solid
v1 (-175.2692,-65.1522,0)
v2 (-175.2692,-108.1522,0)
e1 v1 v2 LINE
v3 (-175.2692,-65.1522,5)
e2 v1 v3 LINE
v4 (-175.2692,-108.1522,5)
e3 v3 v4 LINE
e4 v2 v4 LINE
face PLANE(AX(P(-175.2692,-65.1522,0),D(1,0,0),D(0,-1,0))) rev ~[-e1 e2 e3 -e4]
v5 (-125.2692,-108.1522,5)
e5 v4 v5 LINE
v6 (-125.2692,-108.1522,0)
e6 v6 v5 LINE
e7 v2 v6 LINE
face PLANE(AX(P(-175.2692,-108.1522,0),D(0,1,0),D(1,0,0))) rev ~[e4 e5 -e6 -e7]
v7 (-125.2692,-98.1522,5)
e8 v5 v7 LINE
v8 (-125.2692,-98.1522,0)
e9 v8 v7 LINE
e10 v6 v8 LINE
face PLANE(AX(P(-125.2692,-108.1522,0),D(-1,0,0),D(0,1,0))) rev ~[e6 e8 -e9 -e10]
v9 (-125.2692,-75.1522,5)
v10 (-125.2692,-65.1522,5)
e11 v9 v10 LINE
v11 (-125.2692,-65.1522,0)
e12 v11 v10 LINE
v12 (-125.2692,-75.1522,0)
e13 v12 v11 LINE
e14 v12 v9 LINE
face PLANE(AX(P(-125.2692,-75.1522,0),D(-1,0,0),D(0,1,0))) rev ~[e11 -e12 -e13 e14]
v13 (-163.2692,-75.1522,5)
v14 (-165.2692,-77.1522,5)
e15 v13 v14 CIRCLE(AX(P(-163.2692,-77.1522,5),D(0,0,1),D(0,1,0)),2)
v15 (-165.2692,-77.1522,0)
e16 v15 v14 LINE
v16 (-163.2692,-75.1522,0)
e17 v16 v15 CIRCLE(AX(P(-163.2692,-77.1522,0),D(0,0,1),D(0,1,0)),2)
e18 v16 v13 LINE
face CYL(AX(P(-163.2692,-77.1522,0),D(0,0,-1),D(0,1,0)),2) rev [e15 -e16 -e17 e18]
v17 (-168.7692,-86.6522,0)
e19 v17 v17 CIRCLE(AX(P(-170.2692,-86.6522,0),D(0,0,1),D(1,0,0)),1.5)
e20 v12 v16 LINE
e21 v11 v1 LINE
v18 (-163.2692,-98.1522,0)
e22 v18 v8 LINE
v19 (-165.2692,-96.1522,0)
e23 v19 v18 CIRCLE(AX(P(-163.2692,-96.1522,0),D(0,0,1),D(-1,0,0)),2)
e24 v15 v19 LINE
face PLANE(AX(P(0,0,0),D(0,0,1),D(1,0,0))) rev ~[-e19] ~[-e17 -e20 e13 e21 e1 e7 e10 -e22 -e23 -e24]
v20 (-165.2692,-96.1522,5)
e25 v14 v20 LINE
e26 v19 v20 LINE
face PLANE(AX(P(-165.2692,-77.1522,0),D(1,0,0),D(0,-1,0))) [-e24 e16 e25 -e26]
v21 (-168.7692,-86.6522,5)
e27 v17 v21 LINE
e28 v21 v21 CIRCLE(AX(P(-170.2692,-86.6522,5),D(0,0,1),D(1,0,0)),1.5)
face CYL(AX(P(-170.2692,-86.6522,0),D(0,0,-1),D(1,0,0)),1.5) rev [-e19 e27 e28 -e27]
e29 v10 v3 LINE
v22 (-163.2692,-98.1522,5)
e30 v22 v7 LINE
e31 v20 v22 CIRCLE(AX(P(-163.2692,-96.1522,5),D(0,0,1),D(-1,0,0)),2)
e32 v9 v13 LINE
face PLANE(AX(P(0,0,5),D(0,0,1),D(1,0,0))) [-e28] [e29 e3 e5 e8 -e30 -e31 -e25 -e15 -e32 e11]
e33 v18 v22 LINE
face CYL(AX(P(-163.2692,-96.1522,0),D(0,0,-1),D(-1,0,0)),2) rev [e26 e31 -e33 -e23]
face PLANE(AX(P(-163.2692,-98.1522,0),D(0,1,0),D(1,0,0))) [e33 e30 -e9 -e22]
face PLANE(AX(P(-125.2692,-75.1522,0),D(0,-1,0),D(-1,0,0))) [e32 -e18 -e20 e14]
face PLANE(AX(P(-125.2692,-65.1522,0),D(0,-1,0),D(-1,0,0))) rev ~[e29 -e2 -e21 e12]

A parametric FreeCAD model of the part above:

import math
import FreeCAD as App
import Part
import Sketcher
from FreeCAD import Vector
Q = App.Units.Quantity

doc = App.newDocument("Part")
body = doc.addObject("PartDesign::Body", "Body")

# Sketch on XY plane
sketch1 = body.newObject("Sketcher::SketchObject", "Sketch")
sketch1.AttachmentSupport = (doc.getObject("XY_Plane"), [""])
sketch1.MapMode = "FlatFace"
sketch1.addGeometry([
    Part.LineSegment(Vector(-125.3, -65.2, 0), Vector(-175.3, -65.2, 0)),  # 0
    Part.LineSegment(Vector(-175.3, -65.2, 0), Vector(-175.3, -108.2, 0)),  # 1
    Part.LineSegment(Vector(-175.3, -108.2, 0), Vector(-125.3, -108.2, 0)),  # 2
    Part.LineSegment(Vector(-125.3, -108.2, 0), Vector(-125.3, -98.2, 0)),  # 3
    Part.LineSegment(Vector(-125.3, -98.2, 0), Vector(-163.3, -98.2, 0)),  # 4
    Part.ArcOfCircle(Part.Circle(Vector(-163.3, -96.2, 0), Vector(0, 0, 1), 2), math.radians(180), math.radians(270)),  # 5
    Part.LineSegment(Vector(-165.3, -96.2, 0), Vector(-165.3, -77.2, 0)),  # 6
    Part.ArcOfCircle(Part.Circle(Vector(-163.3, -77.2, 0), Vector(0, 0, 1), 2), math.radians(90), math.radians(180)),  # 7
    Part.LineSegment(Vector(-163.3, -75.2, 0), Vector(-125.3, -75.2, 0)),  # 8
    Part.LineSegment(Vector(-125.3, -75.2, 0), Vector(-125.3, -65.2, 0)),  # 9
    Part.Circle(Vector(-170.3, -86.7, 0), Vector(0, 0, 1), 1.5),  # 10
], False)
sketch1.addConstraint([
    Sketcher.Constraint("Coincident", 0, 2, 1, 1),
    Sketcher.Constraint("Coincident", 1, 2, 2, 1),
    Sketcher.Constraint("Coincident", 2, 2, 3, 1),
    Sketcher.Constraint("Coincident", 3, 2, 4, 1),
    Sketcher.Constraint("Tangent", 4, 2, 5, 2),
    Sketcher.Constraint("Tangent", 5, 1, 6, 1),
    Sketcher.Constraint("Tangent", 6, 2, 7, 2),
    Sketcher.Constraint("Tangent", 7, 1, 8, 1),
    Sketcher.Constraint("Coincident", 8, 2, 9, 1),
    Sketcher.Constraint("Coincident", 9, 2, 0, 1),
    Sketcher.Constraint("Horizontal", 0),
    Sketcher.Constraint("Vertical", 1),
    Sketcher.Constraint("Horizontal", 2),
    Sketcher.Constraint("Vertical", 3),
    Sketcher.Constraint("Horizontal", 4),
    Sketcher.Constraint("Vertical", 6),
    Sketcher.Constraint("Horizontal", 8),
    Sketcher.Constraint("Vertical", 9),
    Sketcher.Constraint("Equal", 5, 7),
    Sketcher.Constraint("Vertical", 3, 2, 8, 2),
    Sketcher.Constraint("Equal", 3, 9),
    Sketcher.Constraint("Diameter", 10, Q("3 mm")),
    Sketcher.Constraint("Radius", 5, Q("2 mm")),
    Sketcher.Constraint("DistanceX", 0, 2, 0, 1, Q("50 mm")),
    Sketcher.Constraint("DistanceY", 1, 2, 1, 1, Q("43 mm")),
    Sketcher.Constraint("DistanceY", 3, 1, 3, 2, Q("10 mm")),
    Sketcher.Constraint("DistanceX", 0, 2, 10, 3, Q("5 mm")),
    Sketcher.Constraint("DistanceX", 10, 3, 5, 1, Q("5 mm")),
    Sketcher.Constraint("DistanceY", 10, 3, 0, 2, Q("21.5 mm")),
    Sketcher.Constraint("DistanceX", 5, 3, -1, 1, Q("163.2692 mm")),
    Sketcher.Constraint("DistanceY", 5, 3, -1, 1, Q("96.1522 mm")),
])
pad1 = body.newObject("PartDesign::Pad", "Pad")
pad1.Profile = sketch1
pad1.Length = 5

doc.recompute()
